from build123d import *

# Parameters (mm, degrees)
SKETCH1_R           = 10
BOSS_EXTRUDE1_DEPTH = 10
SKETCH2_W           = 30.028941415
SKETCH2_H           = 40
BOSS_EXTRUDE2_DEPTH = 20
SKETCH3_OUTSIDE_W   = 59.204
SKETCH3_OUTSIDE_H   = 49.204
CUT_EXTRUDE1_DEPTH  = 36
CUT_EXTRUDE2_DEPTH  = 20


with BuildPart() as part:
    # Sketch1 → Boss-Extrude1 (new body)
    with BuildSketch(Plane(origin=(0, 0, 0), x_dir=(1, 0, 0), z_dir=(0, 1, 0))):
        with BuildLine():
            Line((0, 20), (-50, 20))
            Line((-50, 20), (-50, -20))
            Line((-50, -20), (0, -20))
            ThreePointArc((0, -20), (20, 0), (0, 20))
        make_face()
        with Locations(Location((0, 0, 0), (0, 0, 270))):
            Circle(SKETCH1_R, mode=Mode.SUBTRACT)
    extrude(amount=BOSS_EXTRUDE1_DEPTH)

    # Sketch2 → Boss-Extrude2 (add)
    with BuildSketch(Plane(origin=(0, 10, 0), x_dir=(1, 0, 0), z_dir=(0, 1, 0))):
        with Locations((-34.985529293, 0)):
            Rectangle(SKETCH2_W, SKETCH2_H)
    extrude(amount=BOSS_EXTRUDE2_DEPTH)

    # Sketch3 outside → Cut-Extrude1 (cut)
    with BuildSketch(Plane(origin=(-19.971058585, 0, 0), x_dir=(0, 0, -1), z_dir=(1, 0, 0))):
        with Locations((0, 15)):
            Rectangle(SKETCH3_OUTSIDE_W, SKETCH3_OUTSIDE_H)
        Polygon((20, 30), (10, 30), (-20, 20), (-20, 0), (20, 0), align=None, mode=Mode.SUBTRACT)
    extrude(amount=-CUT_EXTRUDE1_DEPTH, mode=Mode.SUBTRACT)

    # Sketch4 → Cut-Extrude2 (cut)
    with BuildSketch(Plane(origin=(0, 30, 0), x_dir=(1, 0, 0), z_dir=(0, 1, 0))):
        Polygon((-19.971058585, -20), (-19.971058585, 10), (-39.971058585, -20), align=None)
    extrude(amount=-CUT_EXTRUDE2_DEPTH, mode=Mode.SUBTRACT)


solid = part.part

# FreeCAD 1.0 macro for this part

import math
import FreeCAD as App
import Part
import Sketcher

doc = App.newDocument("Part")
body = doc.addObject("PartDesign::Body", "Body")

sketch1 = doc.addObject("Sketcher::SketchObject", "Sketch")
body.addObject(sketch1)
sketch1.AttachmentSupport = (doc.XZ_Plane, [""])
sketch1.MapMode = "FlatFace"
sketch1.addGeometry(Part.LineSegment(App.Vector(0, -20, 0), App.Vector(-50, -20, 0)), False)
sketch1.addGeometry(Part.LineSegment(App.Vector(-50, -20, 0), App.Vector(-50, 20, 0)), False)
sketch1.addGeometry(Part.LineSegment(App.Vector(-50, 20, 0), App.Vector(0, 20, 0)), False)
sketch1.addGeometry(Part.ArcOfCircle(Part.Circle(App.Vector(0, 0, 0), App.Vector(0, 0, 1), 20), math.radians(-90), math.radians(90)), False)
sketch1.addGeometry(Part.Circle(App.Vector(0, 0, 0), App.Vector(0, 0, 1), 10), False)
sketch1.addConstraint(Sketcher.Constraint("Coincident", 0, 2, 1, 1))
sketch1.addConstraint(Sketcher.Constraint("Coincident", 1, 2, 2, 1))
sketch1.addConstraint(Sketcher.Constraint("Tangent", 2, 2, 3, 2))
sketch1.addConstraint(Sketcher.Constraint("Tangent", 3, 1, 0, 1))
sketch1.addConstraint(Sketcher.Constraint("Horizontal", 0))
sketch1.addConstraint(Sketcher.Constraint("Vertical", 1))
sketch1.addConstraint(Sketcher.Constraint("Horizontal", 2))
sketch1.addConstraint(Sketcher.Constraint("Coincident", 3, 3, -1, 1))
sketch1.addConstraint(Sketcher.Constraint("Coincident", 4, 3, -1, 1))
sketch1.addConstraint(Sketcher.Constraint("Diameter", 4, 20.0))
sketch1.addConstraint(Sketcher.Constraint("Radius", 3, 20.0))
sketch1.addConstraint(Sketcher.Constraint("DistanceX", 0, 2, 0, 1, 50.0))
pad1 = doc.addObject("PartDesign::Pad", "Pad")
body.addObject(pad1)
pad1.Profile = sketch1
pad1.Length = 10
pad1.Reversed = True

sketch2 = doc.addObject("Sketcher::SketchObject", "Sketch001")
body.addObject(sketch2)
sketch2.AttachmentSupport = (doc.XZ_Plane, [""])
sketch2.MapMode = "FlatFace"
sketch2.AttachmentOffset = App.Placement(App.Vector(0, 0, -10), App.Rotation())
sketch2.addGeometry(Part.LineSegment(App.Vector(-50, -20, 0), App.Vector(-50, 20, 0)), False)
sketch2.addGeometry(Part.LineSegment(App.Vector(-50, 20, 0), App.Vector(-20, 20, 0)), False)
sketch2.addGeometry(Part.LineSegment(App.Vector(-20, 20, 0), App.Vector(-20, -20, 0)), False)
sketch2.addGeometry(Part.LineSegment(App.Vector(-20, -20, 0), App.Vector(-50, -20, 0)), False)
sketch2.addConstraint(Sketcher.Constraint("Coincident", 0, 2, 1, 1))
sketch2.addConstraint(Sketcher.Constraint("Coincident", 1, 2, 2, 1))
sketch2.addConstraint(Sketcher.Constraint("Coincident", 2, 2, 3, 1))
sketch2.addConstraint(Sketcher.Constraint("Coincident", 3, 2, 0, 1))
sketch2.addConstraint(Sketcher.Constraint("Vertical", 0))
sketch2.addConstraint(Sketcher.Constraint("Horizontal", 1))
sketch2.addConstraint(Sketcher.Constraint("Vertical", 2))
sketch2.addConstraint(Sketcher.Constraint("Horizontal", 3))
sketch2.addConstraint(Sketcher.Constraint("DistanceY", 0, 1, 0, 2, 40.0))
sketch2.addConstraint(Sketcher.Constraint("DistanceX", 0, 2, -1, 1, 50.0))
sketch2.addConstraint(Sketcher.Constraint("DistanceY", -1, 1, 0, 2, 20.0))
sketch2.addConstraint(Sketcher.Constraint("DistanceX", 1, 1, 1, 2, 30.028941))
pad2 = doc.addObject("PartDesign::Pad", "Pad001")
body.addObject(pad2)
pad2.Profile = sketch2
pad2.Length = 20
pad2.Reversed = True

sketch3 = doc.addObject("Sketcher::SketchObject", "Sketch002")
body.addObject(sketch3)
sketch3.AttachmentSupport = (doc.YZ_Plane, [""])
sketch3.MapMode = "FlatFace"
sketch3.AttachmentOffset = App.Placement(App.Vector(0, 0, -19.971059), App.Rotation())
sketch3.addGeometry(Part.LineSegment(App.Vector(40, 30, 0), App.Vector(-10, 30, 0)), False)
sketch3.addGeometry(Part.LineSegment(App.Vector(-10, 30, 0), App.Vector(-10, -30, 0)), False)
sketch3.addGeometry(Part.LineSegment(App.Vector(-10, -30, 0), App.Vector(40, -30, 0)), False)
sketch3.addGeometry(Part.LineSegment(App.Vector(40, -30, 0), App.Vector(40, 30, 0)), False)
sketch3.addGeometry(Part.LineSegment(App.Vector(30, -10, 0), App.Vector(30, -20, 0)), False)
sketch3.addGeometry(Part.LineSegment(App.Vector(30, -20, 0), App.Vector(0, -20, 0)), False)
sketch3.addGeometry(Part.LineSegment(App.Vector(0, -20, 0), App.Vector(0, 20, 0)), False)
sketch3.addGeometry(Part.LineSegment(App.Vector(0, 20, 0), App.Vector(20, 20, 0)), False)
sketch3.addGeometry(Part.LineSegment(App.Vector(20, 20, 0), App.Vector(30, -10, 0)), False)
sketch3.addConstraint(Sketcher.Constraint("Coincident", 0, 2, 1, 1))
sketch3.addConstraint(Sketcher.Constraint("Coincident", 1, 2, 2, 1))
sketch3.addConstraint(Sketcher.Constraint("Coincident", 2, 2, 3, 1))
sketch3.addConstraint(Sketcher.Constraint("Coincident", 3, 2, 0, 1))
sketch3.addConstraint(Sketcher.Constraint("Coincident", 4, 2, 5, 1))
sketch3.addConstraint(Sketcher.Constraint("Coincident", 5, 2, 6, 1))
sketch3.addConstraint(Sketcher.Constraint("Coincident", 6, 2, 7, 1))
sketch3.addConstraint(Sketcher.Constraint("Coincident", 7, 2, 8, 1))
sketch3.addConstraint(Sketcher.Constraint("Coincident", 8, 2, 4, 1))
sketch3.addConstraint(Sketcher.Constraint("Horizontal", 0))
sketch3.addConstraint(Sketcher.Constraint("Vertical", 1))
sketch3.addConstraint(Sketcher.Constraint("Horizontal", 2))
sketch3.addConstraint(Sketcher.Constraint("Vertical", 3))
sketch3.addConstraint(Sketcher.Constraint("Vertical", 4))
sketch3.addConstraint(Sketcher.Constraint("Horizontal", 5))
sketch3.addConstraint(Sketcher.Constraint("Vertical", 6))
sketch3.addConstraint(Sketcher.Constraint("Horizontal", 7))
sketch3.addConstraint(Sketcher.Constraint("Symmetric", 5, 2, 6, 2, -1, 1))
sketch3.addConstraint(Sketcher.Constraint("DistanceX", 5, 2, 5, 1, 30.0))
sketch3.addConstraint(Sketcher.Constraint("DistanceX", 7, 1, 7, 2, 20.0))
sketch3.addConstraint(Sketcher.Constraint("DistanceY", 4, 2, 4, 1, 10.0))
sketch3.addConstraint(Sketcher.Constraint("DistanceY", 6, 1, 6, 2, 40.0))
sketch3.addConstraint(Sketcher.Constraint("DistanceX", 0, 2, 0, 1, 49.204))
sketch3.addConstraint(Sketcher.Constraint("DistanceY", 1, 2, 1, 1, 59.204))
sketch3.addConstraint(Sketcher.Constraint("DistanceX", 0, 2, -1, 1, 9.602))
sketch3.addConstraint(Sketcher.Constraint("DistanceY", -1, 1, 0, 2, 29.602))
pocket1 = doc.addObject("PartDesign::Pocket", "Pocket")
body.addObject(pocket1)
pocket1.Profile = sketch3
pocket1.Length = 36

sketch4 = doc.addObject("Sketcher::SketchObject", "Sketch003")
body.addObject(sketch4)
sketch4.AttachmentSupport = (doc.XZ_Plane, [""])
sketch4.MapMode = "FlatFace"
sketch4.AttachmentOffset = App.Placement(App.Vector(0, 0, -30), App.Rotation())
sketch4.addGeometry(Part.LineSegment(App.Vector(-20, 20, 0), App.Vector(-20, -10, 0)), False)
sketch4.addGeometry(Part.LineSegment(App.Vector(-20, -10, 0), App.Vector(-40, 20, 0)), False)
sketch4.addGeometry(Part.LineSegment(App.Vector(-40, 20, 0), App.Vector(-20, 20, 0)), False)
sketch4.addConstraint(Sketcher.Constraint("Coincident", 0, 2, 1, 1))
sketch4.addConstraint(Sketcher.Constraint("Coincident", 1, 2, 2, 1))
sketch4.addConstraint(Sketcher.Constraint("Coincident", 2, 2, 0, 1))
sketch4.addConstraint(Sketcher.Constraint("Vertical", 0))
sketch4.addConstraint(Sketcher.Constraint("Horizontal", 2))
sketch4.addConstraint(Sketcher.Constraint("DistanceX", 2, 1, 2, 2, 20.0))
sketch4.addConstraint(Sketcher.Constraint("DistanceY", 0, 2, 0, 1, 30.0))
sketch4.addConstraint(Sketcher.Constraint("DistanceY", 0, 2, -1, 1, 10.0))
sketch4.addConstraint(Sketcher.Constraint("DistanceX", 0, 2, -1, 1, 19.971059))
pocket2 = doc.addObject("PartDesign::Pocket", "Pocket001")
body.addObject(pocket2)
pocket2.Profile = sketch4
pocket2.Length = 20
pocket2.Reversed = True

doc.recompute()
